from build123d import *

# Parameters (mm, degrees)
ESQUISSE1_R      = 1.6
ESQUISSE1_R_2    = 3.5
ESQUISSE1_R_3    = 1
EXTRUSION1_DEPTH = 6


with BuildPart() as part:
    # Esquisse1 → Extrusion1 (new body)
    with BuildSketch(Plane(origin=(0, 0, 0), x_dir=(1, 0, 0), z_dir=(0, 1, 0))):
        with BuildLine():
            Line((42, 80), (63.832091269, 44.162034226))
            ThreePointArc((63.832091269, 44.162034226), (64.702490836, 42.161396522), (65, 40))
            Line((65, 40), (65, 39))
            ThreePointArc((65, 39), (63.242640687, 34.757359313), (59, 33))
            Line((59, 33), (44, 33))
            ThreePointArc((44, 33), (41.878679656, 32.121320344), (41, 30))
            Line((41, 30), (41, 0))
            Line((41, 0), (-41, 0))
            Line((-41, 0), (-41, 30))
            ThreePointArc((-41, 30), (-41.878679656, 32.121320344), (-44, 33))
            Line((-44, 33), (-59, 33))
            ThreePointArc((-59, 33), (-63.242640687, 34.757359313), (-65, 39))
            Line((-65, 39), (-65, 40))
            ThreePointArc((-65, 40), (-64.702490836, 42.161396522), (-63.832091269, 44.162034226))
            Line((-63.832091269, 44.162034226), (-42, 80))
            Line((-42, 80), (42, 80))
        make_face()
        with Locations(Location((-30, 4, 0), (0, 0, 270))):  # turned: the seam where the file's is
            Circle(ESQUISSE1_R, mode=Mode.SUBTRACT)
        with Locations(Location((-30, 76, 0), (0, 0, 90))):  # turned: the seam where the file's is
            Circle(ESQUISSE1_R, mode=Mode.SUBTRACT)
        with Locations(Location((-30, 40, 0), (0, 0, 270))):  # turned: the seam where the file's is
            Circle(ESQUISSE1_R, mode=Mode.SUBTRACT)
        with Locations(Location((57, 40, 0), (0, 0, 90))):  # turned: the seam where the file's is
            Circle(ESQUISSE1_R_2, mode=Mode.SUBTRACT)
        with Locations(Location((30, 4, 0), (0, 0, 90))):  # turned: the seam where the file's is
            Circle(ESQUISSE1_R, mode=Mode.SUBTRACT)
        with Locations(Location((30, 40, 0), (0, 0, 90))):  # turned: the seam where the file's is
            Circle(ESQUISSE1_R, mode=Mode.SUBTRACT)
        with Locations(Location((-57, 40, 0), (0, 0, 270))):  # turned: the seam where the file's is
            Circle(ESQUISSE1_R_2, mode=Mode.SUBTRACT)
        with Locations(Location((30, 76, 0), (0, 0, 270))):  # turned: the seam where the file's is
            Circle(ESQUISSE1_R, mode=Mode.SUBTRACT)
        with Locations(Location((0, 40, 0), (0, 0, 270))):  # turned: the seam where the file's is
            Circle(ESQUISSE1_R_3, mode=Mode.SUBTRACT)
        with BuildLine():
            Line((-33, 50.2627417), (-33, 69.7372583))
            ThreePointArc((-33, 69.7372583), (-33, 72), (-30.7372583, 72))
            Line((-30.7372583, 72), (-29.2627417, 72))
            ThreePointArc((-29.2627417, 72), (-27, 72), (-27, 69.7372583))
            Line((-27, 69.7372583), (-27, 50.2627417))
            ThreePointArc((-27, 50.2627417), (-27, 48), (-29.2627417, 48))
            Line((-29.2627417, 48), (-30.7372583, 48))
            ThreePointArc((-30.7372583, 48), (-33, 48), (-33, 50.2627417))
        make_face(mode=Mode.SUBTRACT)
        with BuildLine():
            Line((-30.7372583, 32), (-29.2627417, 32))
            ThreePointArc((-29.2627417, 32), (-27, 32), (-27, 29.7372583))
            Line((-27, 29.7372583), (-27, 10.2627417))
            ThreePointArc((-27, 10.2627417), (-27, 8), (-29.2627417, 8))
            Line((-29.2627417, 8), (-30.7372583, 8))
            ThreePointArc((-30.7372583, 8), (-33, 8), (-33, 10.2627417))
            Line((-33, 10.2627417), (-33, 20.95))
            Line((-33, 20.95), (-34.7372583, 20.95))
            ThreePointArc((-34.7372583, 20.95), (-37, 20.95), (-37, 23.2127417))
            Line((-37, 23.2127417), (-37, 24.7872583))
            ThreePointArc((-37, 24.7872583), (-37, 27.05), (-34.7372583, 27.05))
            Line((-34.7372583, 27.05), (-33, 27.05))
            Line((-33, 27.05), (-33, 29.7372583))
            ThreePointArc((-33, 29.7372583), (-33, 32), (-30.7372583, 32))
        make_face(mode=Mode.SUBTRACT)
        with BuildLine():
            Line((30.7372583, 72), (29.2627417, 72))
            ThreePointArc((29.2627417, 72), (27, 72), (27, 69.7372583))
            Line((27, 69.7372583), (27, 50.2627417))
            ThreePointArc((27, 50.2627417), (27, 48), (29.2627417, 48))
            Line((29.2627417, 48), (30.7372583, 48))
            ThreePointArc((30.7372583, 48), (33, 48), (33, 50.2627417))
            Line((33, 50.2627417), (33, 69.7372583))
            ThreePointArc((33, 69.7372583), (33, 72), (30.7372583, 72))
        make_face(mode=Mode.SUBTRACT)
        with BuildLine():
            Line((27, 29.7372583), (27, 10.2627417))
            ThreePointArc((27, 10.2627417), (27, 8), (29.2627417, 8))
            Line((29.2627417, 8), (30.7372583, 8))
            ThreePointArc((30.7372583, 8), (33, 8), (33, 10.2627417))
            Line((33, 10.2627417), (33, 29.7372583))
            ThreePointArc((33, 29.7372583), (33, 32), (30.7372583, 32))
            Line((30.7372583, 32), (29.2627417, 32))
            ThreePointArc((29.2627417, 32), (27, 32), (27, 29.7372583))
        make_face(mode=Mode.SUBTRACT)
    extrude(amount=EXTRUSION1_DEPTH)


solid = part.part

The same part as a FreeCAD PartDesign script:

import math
import FreeCAD as App
import Part
import Sketcher
from FreeCAD import Vector

doc = App.newDocument("Part")
body = doc.addObject("PartDesign::Body", "Body")

# Sketch on XZ plane
sketch1 = body.newObject("Sketcher::SketchObject", "Sketch")
sketch1.AttachmentSupport = (doc.getObject("XZ_Plane"), [""])
sketch1.MapMode = "FlatFace"
sketch1.addGeometry(Part.LineSegment(Vector(63.8, -44.2, 0), Vector(42, -80, 0)), False)
sketch1.addGeometry(Part.LineSegment(Vector(42, -80, 0), Vector(-42, -80, 0)), False)
sketch1.addGeometry(Part.LineSegment(Vector(-42, -80, 0), Vector(-63.8, -44.2, 0)), False)
sketch1.addGeometry(Part.ArcOfCircle(Part.Circle(Vector(-57, -40, 0), Vector(0, 0, 1), 8), math.radians(180), math.radians(211)), False)
sketch1.addGeometry(Part.LineSegment(Vector(-65, -40, 0), Vector(-65, -39, 0)), False)
sketch1.addGeometry(Part.ArcOfCircle(Part.Circle(Vector(-59, -39, 0), Vector(0, 0, 1), 6), math.radians(90), math.radians(180)), False)
sketch1.addGeometry(Part.LineSegment(Vector(-59, -33, 0), Vector(-44, -33, 0)), False)
sketch1.addGeometry(Part.ArcOfCircle(Part.Circle(Vector(-44, -30, 0), Vector(0, 0, 1), 3), math.radians(-90), math.radians(0)), False)
sketch1.addGeometry(Part.LineSegment(Vector(-41, -30, 0), Vector(-41, 0, 0)), False)
sketch1.addGeometry(Part.LineSegment(Vector(-41, 0, 0), Vector(41, 0, 0)), False)
sketch1.addGeometry(Part.LineSegment(Vector(41, 0, 0), Vector(41, -30, 0)), False)
sketch1.addGeometry(Part.ArcOfCircle(Part.Circle(Vector(44, -30, 0), Vector(0, 0, 1), 3), math.radians(180), math.radians(270)), False)
sketch1.addGeometry(Part.LineSegment(Vector(44, -33, 0), Vector(59, -33, 0)), False)
sketch1.addGeometry(Part.ArcOfCircle(Part.Circle(Vector(59, -39, 0), Vector(0, 0, 1), 6), math.radians(0), math.radians(90)), False)
sketch1.addGeometry(Part.LineSegment(Vector(65, -39, 0), Vector(65, -40, 0)), False)
sketch1.addGeometry(Part.ArcOfCircle(Part.Circle(Vector(57, -40, 0), Vector(0, 0, 1), 8), math.radians(-31), math.radians(0)), False)
sketch1.addGeometry(Part.Circle(Vector(30, -4, 0), Vector(0, 0, 1), 1.6), False)
sketch1.addGeometry(Part.ArcOfCircle(Part.Circle(Vector(28.1, -30.9, 0), Vector(0, 0, 1), 1.6), math.radians(135), math.radians(315)), False)
sketch1.addGeometry(Part.LineSegment(Vector(29.3, -32, 0), Vector(30.7, -32, 0)), False)
sketch1.addGeometry(Part.ArcOfCircle(Part.Circle(Vector(31.9, -30.9, 0), Vector(0, 0, 1), 1.6), math.radians(-135), math.radians(45)), False)
sketch1.addGeometry(Part.LineSegment(Vector(33, -29.7, 0), Vector(33, -10.3, 0)), False)
sketch1.addGeometry(Part.ArcOfCircle(Part.Circle(Vector(31.9, -9.1, 0), Vector(0, 0, 1), 1.6), math.radians(-45), math.radians(135)), False)
sketch1.addGeometry(Part.LineSegment(Vector(30.7, -8, 0), Vector(29.3, -8, 0)), False)
sketch1.addGeometry(Part.ArcOfCircle(Part.Circle(Vector(28.1, -9.1, 0), Vector(0, 0, 1), 1.6), math.radians(45), math.radians(225)), False)
sketch1.addGeometry(Part.LineSegment(Vector(27, -10.3, 0), Vector(27, -29.7, 0)), False)
sketch1.addGeometry(Part.Circle(Vector(-30, -4, 0), Vector(0, 0, 1), 1.6), False)
sketch1.addGeometry(Part.LineSegment(Vector(-30.7, -32, 0), Vector(-29.3, -32, 0)), False)
sketch1.addGeometry(Part.ArcOfCircle(Part.Circle(Vector(-28.1, -30.9, 0), Vector(0, 0, 1), 1.6), math.radians(-135), math.radians(45)), False)
sketch1.addGeometry(Part.LineSegment(Vector(-27, -29.7, 0), Vector(-27, -10.3, 0)), False)
sketch1.addGeometry(Part.ArcOfCircle(Part.Circle(Vector(-28.1, -9.1, 0), Vector(0, 0, 1), 1.6), math.radians(-45), math.radians(135)), False)
sketch1.addGeometry(Part.LineSegment(Vector(-29.3, -8, 0), Vector(-30.7, -8, 0)), False)
sketch1.addGeometry(Part.ArcOfCircle(Part.Circle(Vector(-31.9, -9.1, 0), Vector(0, 0, 1), 1.6), math.radians(45), math.radians(225)), False)
sketch1.addGeometry(Part.LineSegment(Vector(-33, -10.3, 0), Vector(-33, -20.9, 0)), False)
sketch1.addGeometry(Part.LineSegment(Vector(-33, -20.9, 0), Vector(-34.7, -20.9, 0)), False)
sketch1.addGeometry(Part.ArcOfCircle(Part.Circle(Vector(-35.9, -22.1, 0), Vector(0, 0, 1), 1.6), math.radians(45), math.radians(225)), False)
sketch1.addGeometry(Part.LineSegment(Vector(-37, -23.2, 0), Vector(-37, -24.8, 0)), False)
sketch1.addGeometry(Part.ArcOfCircle(Part.Circle(Vector(-35.9, -25.9, 0), Vector(0, 0, 1), 1.6), math.radians(135), math.radians(315)), False)
sketch1.addGeometry(Part.LineSegment(Vector(-34.7, -27.1, 0), Vector(-33, -27.1, 0)), False)
sketch1.addGeometry(Part.LineSegment(Vector(-33, -27.1, 0), Vector(-33, -29.7, 0)), False)
sketch1.addGeometry(Part.ArcOfCircle(Part.Circle(Vector(-31.9, -30.9, 0), Vector(0, 0, 1), 1.6), math.radians(135), math.radians(315)), False)
sketch1.addGeometry(Part.Circle(Vector(57, -40, 0), Vector(0, 0, 1), 3.5), False)
sketch1.addGeometry(Part.Circle(Vector(30, -40, 0), Vector(0, 0, 1), 1.6), False)
sketch1.addGeometry(Part.ArcOfCircle(Part.Circle(Vector(31.9, -70.9, 0), Vector(0, 0, 1), 1.6), math.radians(-135), math.radians(45)), False)
sketch1.addGeometry(Part.LineSegment(Vector(33, -69.7, 0), Vector(33, -50.3, 0)), False)
sketch1.addGeometry(Part.ArcOfCircle(Part.Circle(Vector(31.9, -49.1, 0), Vector(0, 0, 1), 1.6), math.radians(-45), math.radians(135)), False)
sketch1.addGeometry(Part.LineSegment(Vector(30.7, -48, 0), Vector(29.3, -48, 0)), False)
sketch1.addGeometry(Part.ArcOfCircle(Part.Circle(Vector(28.1, -49.1, 0), Vector(0, 0, 1), 1.6), math.radians(45), math.radians(225)), False)
sketch1.addGeometry(Part.LineSegment(Vector(27, -50.3, 0), Vector(27, -69.7, 0)), False)
sketch1.addGeometry(Part.ArcOfCircle(Part.Circle(Vector(28.1, -70.9, 0), Vector(0, 0, 1), 1.6), math.radians(135), math.radians(315)), False)
sketch1.addGeometry(Part.LineSegment(Vector(29.3, -72, 0), Vector(30.7, -72, 0)), False)
sketch1.addGeometry(Part.Circle(Vector(30, -76, 0), Vector(0, 0, 1), 1.6), False)
sketch1.addGeometry(Part.Circle(Vector(0, -40, 0), Vector(0, 0, 1), 1), False)
sketch1.addGeometry(Part.Circle(Vector(-30, -40, 0), Vector(0, 0, 1), 1.6), False)
sketch1.addGeometry(Part.Circle(Vector(-57, -40, 0), Vector(0, 0, 1), 3.5), False)
sketch1.addGeometry(Part.LineSegment(Vector(-33, -50.3, 0), Vector(-33, -69.7, 0)), False)
sketch1.addGeometry(Part.ArcOfCircle(Part.Circle(Vector(-31.9, -70.9, 0), Vector(0, 0, 1), 1.6), math.radians(135), math.radians(315)), False)
sketch1.addGeometry(Part.LineSegment(Vector(-30.7, -72, 0), Vector(-29.3, -72, 0)), False)
sketch1.addGeometry(Part.ArcOfCircle(Part.Circle(Vector(-28.1, -70.9, 0), Vector(0, 0, 1), 1.6), math.radians(-135), math.radians(45)), False)
sketch1.addGeometry(Part.LineSegment(Vector(-27, -69.7, 0), Vector(-27, -50.3, 0)), False)
sketch1.addGeometry(Part.ArcOfCircle(Part.Circle(Vector(-28.1, -49.1, 0), Vector(0, 0, 1), 1.6), math.radians(-45), math.radians(135)), False)
sketch1.addGeometry(Part.LineSegment(Vector(-29.3, -48, 0), Vector(-30.7, -48, 0)), False)
sketch1.addGeometry(Part.ArcOfCircle(Part.Circle(Vector(-31.9, -49.1, 0), Vector(0, 0, 1), 1.6), math.radians(45), math.radians(225)), False)
sketch1.addGeometry(Part.Circle(Vector(-30, -76, 0), Vector(0, 0, 1), 1.6), False)
sketch1.addConstraint(Sketcher.Constraint("Coincident", 0, 2, 1, 1))
sketch1.addConstraint(Sketcher.Constraint("Coincident", 1, 2, 2, 1))
sketch1.addConstraint(Sketcher.Constraint("Tangent", 2, 2, 3, 2))
sketch1.addConstraint(Sketcher.Constraint("Tangent", 3, 1, 4, 1))
sketch1.addConstraint(Sketcher.Constraint("Tangent", 4, 2, 5, 2))
sketch1.addConstraint(Sketcher.Constraint("Tangent", 5, 1, 6, 1))
sketch1.addConstraint(Sketcher.Constraint("Tangent", 6, 2, 7, 1))
sketch1.addConstraint(Sketcher.Constraint("Tangent", 7, 2, 8, 1))
sketch1.addConstraint(Sketcher.Constraint("Coincident", 8, 2, 9, 1))
sketch1.addConstraint(Sketcher.Constraint("Coincident", 9, 2, 10, 1))
sketch1.addConstraint(Sketcher.Constraint("Tangent", 10, 2, 11, 1))
sketch1.addConstraint(Sketcher.Constraint("Tangent", 11, 2, 12, 1))
sketch1.addConstraint(Sketcher.Constraint("Tangent", 12, 2, 13, 2))
sketch1.addConstraint(Sketcher.Constraint("Tangent", 13, 1, 14, 1))
sketch1.addConstraint(Sketcher.Constraint("Tangent", 14, 2, 15, 2))
sketch1.addConstraint(Sketcher.Constraint("Tangent", 15, 1, 0, 1))
sketch1.addConstraint(Sketcher.Constraint("Coincident", 17, 2, 18, 1))
sketch1.addConstraint(Sketcher.Constraint("Coincident", 18, 2, 19, 1))
sketch1.addConstraint(Sketcher.Constraint("Coincident", 19, 2, 20, 1))
sketch1.addConstraint(Sketcher.Constraint("Coincident", 20, 2, 21, 1))
sketch1.addConstraint(Sketcher.Constraint("Coincident", 21, 2, 22, 1))
sketch1.addConstraint(Sketcher.Constraint("Coincident", 22, 2, 23, 1))
sketch1.addConstraint(Sketcher.Constraint("Coincident", 23, 2, 24, 1))
sketch1.addConstraint(Sketcher.Constraint("Coincident", 24, 2, 17, 1))
sketch1.addConstraint(Sketcher.Constraint("Coincident", 26, 2, 27, 1))
sketch1.addConstraint(Sketcher.Constraint("Coincident", 27, 2, 28, 1))
sketch1.addConstraint(Sketcher.Constraint("Coincident", 28, 2, 29, 1))
sketch1.addConstraint(Sketcher.Constraint("Coincident", 29, 2, 30, 1))
sketch1.addConstraint(Sketcher.Constraint("Coincident", 30, 2, 31, 1))
sketch1.addConstraint(Sketcher.Constraint("Coincident", 31, 2, 32, 1))
sketch1.addConstraint(Sketcher.Constraint("Coincident", 32, 2, 33, 1))
sketch1.addConstraint(Sketcher.Constraint("Coincident", 33, 2, 34, 1))
sketch1.addConstraint(Sketcher.Constraint("Coincident", 34, 2, 35, 1))
sketch1.addConstraint(Sketcher.Constraint("Coincident", 35, 2, 36, 1))
sketch1.addConstraint(Sketcher.Constraint("Coincident", 36, 2, 37, 1))
sketch1.addConstraint(Sketcher.Constraint("Coincident", 37, 2, 38, 1))
sketch1.addConstraint(Sketcher.Constraint("Coincident", 38, 2, 39, 1))
sketch1.addConstraint(Sketcher.Constraint("Coincident", 39, 2, 26, 1))
sketch1.addConstraint(Sketcher.Constraint("Coincident", 42, 2, 43, 1))
sketch1.addConstraint(Sketcher.Constraint("Coincident", 43, 2, 44, 1))
sketch1.addConstraint(Sketcher.Constraint("Coincident", 44, 2, 45, 1))
sketch1.addConstraint(Sketcher.Constraint("Coincident", 45, 2, 46, 1))
sketch1.addConstraint(Sketcher.Constraint("Coincident", 46, 2, 47, 1))
sketch1.addConstraint(Sketcher.Constraint("Coincident", 47, 2, 48, 1))
sketch1.addConstraint(Sketcher.Constraint("Coincident", 48, 2, 49, 1))
sketch1.addConstraint(Sketcher.Constraint("Coincident", 49, 2, 42, 1))
sketch1.addConstraint(Sketcher.Constraint("Coincident", 54, 2, 55, 1))
sketch1.addConstraint(Sketcher.Constraint("Coincident", 55, 2, 56, 1))
sketch1.addConstraint(Sketcher.Constraint("Coincident", 56, 2, 57, 1))
sketch1.addConstraint(Sketcher.Constraint("Coincident", 57, 2, 58, 1))
sketch1.addConstraint(Sketcher.Constraint("Coincident", 58, 2, 59, 1))
sketch1.addConstraint(Sketcher.Constraint("Coincident", 59, 2, 60, 1))
sketch1.addConstraint(Sketcher.Constraint("Coincident", 60, 2, 61, 1))
sketch1.addConstraint(Sketcher.Constraint("Coincident", 61, 2, 54, 1))
sketch1.addConstraint(Sketcher.Constraint("Horizontal", 1))
sketch1.addConstraint(Sketcher.Constraint("Vertical", 4))
sketch1.addConstraint(Sketcher.Constraint("Horizontal", 6))
sketch1.addConstraint(Sketcher.Constraint("Vertical", 8))
sketch1.addConstraint(Sketcher.Constraint("Horizontal", 9))
sketch1.addConstraint(Sketcher.Constraint("Vertical", 10))
sketch1.addConstraint(Sketcher.Constraint("Horizontal", 12))
sketch1.addConstraint(Sketcher.Constraint("Vertical", 14))
sketch1.addConstraint(Sketcher.Constraint("Horizontal", 18))
sketch1.addConstraint(Sketcher.Constraint("Vertical", 20))
sketch1.addConstraint(Sketcher.Constraint("Horizontal", 22))
sketch1.addConstraint(Sketcher.Constraint("Vertical", 24))
sketch1.addConstraint(Sketcher.Constraint("Horizontal", 26))
sketch1.addConstraint(Sketcher.Constraint("Vertical", 28))
sketch1.addConstraint(Sketcher.Constraint("Horizontal", 30))
sketch1.addConstraint(Sketcher.Constraint("Vertical", 32))
sketch1.addConstraint(Sketcher.Constraint("Horizontal", 33))
sketch1.addConstraint(Sketcher.Constraint("Vertical", 35))
sketch1.addConstraint(Sketcher.Constraint("Horizontal", 37))
sketch1.addConstraint(Sketcher.Constraint("Vertical", 38))
sketch1.addConstraint(Sketcher.Constraint("Vertical", 43))
sketch1.addConstraint(Sketcher.Constraint("Horizontal", 45))
sketch1.addConstraint(Sketcher.Constraint("Vertical", 47))
sketch1.addConstraint(Sketcher.Constraint("Horizontal", 49))
sketch1.addConstraint(Sketcher.Constraint("Vertical", 54))
sketch1.addConstraint(Sketcher.Constraint("Horizontal", 56))
sketch1.addConstraint(Sketcher.Constraint("Vertical", 58))
sketch1.addConstraint(Sketcher.Constraint("Horizontal", 60))
sketch1.addConstraint(Sketcher.Constraint("Coincident", 40, 3, 15, 3))
sketch1.addConstraint(Sketcher.Constraint("Coincident", 53, 3, 3, 3))
sketch1.addConstraint(Sketcher.Constraint("Equal", 7, 11))
sketch1.addConstraint(Sketcher.Constraint("Equal", 5, 13))
sketch1.addConstraint(Sketcher.Constraint("Equal", 3, 15))
sketch1.addConstraint(Sketcher.Constraint("Equal", 16, 17))
sketch1.addConstraint(Sketcher.Constraint("Equal", 17, 19))
sketch1.addConstraint(Sketcher.Constraint("Equal", 19, 21))
sketch1.addConstraint(Sketcher.Constraint("Equal", 21, 23))
sketch1.addConstraint(Sketcher.Constraint("Equal", 23, 25))
sketch1.addConstraint(Sketcher.Constraint("Equal", 25, 27))
sketch1.addConstraint(Sketcher.Constraint("Equal", 27, 29))
sketch1.addConstraint(Sketcher.Constraint("Equal", 29, 31))
sketch1.addConstraint(Sketcher.Constraint("Equal", 31, 34))
sketch1.addConstraint(Sketcher.Constraint("Equal", 34, 36))
sketch1.addConstraint(Sketcher.Constraint("Equal", 36, 39))
sketch1.addConstraint(Sketcher.Constraint("Equal", 39, 41))
sketch1.addConstraint(Sketcher.Constraint("Equal", 41, 42))
sketch1.addConstraint(Sketcher.Constraint("Equal", 42, 44))
sketch1.addConstraint(Sketcher.Constraint("Equal", 44, 46))
sketch1.addConstraint(Sketcher.Constraint("Equal", 46, 48))
sketch1.addConstraint(Sketcher.Constraint("Equal", 48, 50))
sketch1.addConstraint(Sketcher.Constraint("Equal", 50, 52))
sketch1.addConstraint(Sketcher.Constraint("Equal", 40, 53))
sketch1.addConstraint(Sketcher.Constraint("Equal", 52, 55))
sketch1.addConstraint(Sketcher.Constraint("Equal", 55, 57))
sketch1.addConstraint(Sketcher.Constraint("Equal", 57, 59))
sketch1.addConstraint(Sketcher.Constraint("Equal", 59, 61))
sketch1.addConstraint(Sketcher.Constraint("Equal", 61, 62))
sketch1.addConstraint(Sketcher.Constraint("Symmetric", 8, 2, 9, 2, -1, 1))
sketch1.addConstraint(Sketcher.Constraint("Symmetric", 5, 3, 13, 3, -2))
sketch1.addConstraint(Sketcher.Constraint("Symmetric", 16, 3, 25, 3, -2))
sketch1.addConstraint(Sketcher.Constraint("Symmetric", 17, 3, 27, 3, -2))
sketch1.addConstraint(Sketcher.Constraint("Symmetric", 23, 3, 29, 3, -2))
sketch1.addConstraint(Sketcher.Constraint("Symmetric", 21, 3, 31, 3, -2))
sketch1.addConstraint(Sketcher.Constraint("Symmetric", 19, 3, 39, 3, -2))
sketch1.addConstraint(Sketcher.Constraint("Symmetric", 41, 3, 52, 3, -2))
sketch1.addConstraint(Sketcher.Constraint("Symmetric", 42, 3, 55, 3, -2))
sketch1.addConstraint(Sketcher.Constraint("Symmetric", 48, 3, 57, 3, -2))
sketch1.addConstraint(Sketcher.Constraint("Symmetric", 46, 3, 59, 3, -2))
sketch1.addConstraint(Sketcher.Constraint("Symmetric", 44, 3, 61, 3, -2))
sketch1.addConstraint(Sketcher.Constraint("Symmetric", 50, 3, 62, 3, -2))
sketch1.addConstraint(Sketcher.Constraint("Symmetric", 2, 2, 15, 1, -2))
sketch1.addConstraint(Sketcher.Constraint("PointOnObject", 51, 3, -2))
sketch1.addConstraint(Sketcher.Constraint("Horizontal", 17, 3, 19, 3))
sketch1.addConstraint(Sketcher.Constraint("Horizontal", 21, 3, 23, 3))
sketch1.addConstraint(Sketcher.Constraint("Horizontal", 40, 3, 41, 3))
sketch1.addConstraint(Sketcher.Constraint("Horizontal", 44, 3, 46, 3))
sketch1.addConstraint(Sketcher.Constraint("Horizontal", 42, 3, 48, 3))
sketch1.addConstraint(Sketcher.Constraint("Horizontal", 41, 3, 51, 3))
sketch1.addConstraint(Sketcher.Constraint("Horizontal", 20, 2, 23, 2))
sketch1.addConstraint(Sketcher.Constraint("Horizontal", 19, 2, 24, 2))
sketch1.addConstraint(Sketcher.Constraint("Horizontal", 18, 2, 26, 2))
sketch1.addConstraint(Sketcher.Constraint("Horizontal", 24, 2, 27, 2))
sketch1.addConstraint(Sketcher.Constraint("Horizontal", 22, 2, 29, 2))
sketch1.addConstraint(Sketcher.Constraint("Horizontal", 28, 2, 31, 2))
sketch1.addConstraint(Sketcher.Constraint("Horizontal", 27, 2, 38, 2))
sketch1.addConstraint(Sketcher.Constraint("Horizontal", 43, 2, 46, 2))
sketch1.addConstraint(Sketcher.Constraint("Horizontal", 42, 2, 47, 2))
sketch1.addConstraint(Sketcher.Constraint("Horizontal", 47, 2, 54, 2))
sketch1.addConstraint(Sketcher.Constraint("Horizontal", 49, 2, 55, 2))
sketch1.addConstraint(Sketcher.Constraint("Horizontal", 54, 2, 57, 2))
sketch1.addConstraint(Sketcher.Constraint("Horizontal", 45, 2, 59, 2))
sketch1.addConstraint(Sketcher.Constraint("Vertical", 19, 3, 21, 3))
sketch1.addConstraint(Sketcher.Constraint("Vertical", 34, 3, 36, 3))
sketch1.addConstraint(Sketcher.Constraint("Vertical", 16, 3, 41, 3))
sketch1.addConstraint(Sketcher.Constraint("Vertical", 21, 3, 42, 3))
sketch1.addConstraint(Sketcher.Constraint("Vertical", 42, 3, 44, 3))
sketch1.addConstraint(Sketcher.Constraint("Vertical", 23, 3, 46, 3))
sketch1.addConstraint(Sketcher.Constraint("Vertical", 41, 3, 50, 3))
sketch1.addConstraint(Sketcher.Constraint("Vertical", 18, 2, 21, 2))
sketch1.addConstraint(Sketcher.Constraint("Vertical", 33, 2, 36, 2))
sketch1.addConstraint(Sketcher.Constraint("Vertical", 20, 2, 42, 2))
sketch1.addConstraint(Sketcher.Constraint("Vertical", 21, 2, 44, 2))
sketch1.addConstraint(Sketcher.Constraint("Vertical", 45, 2, 48, 2))
sketch1.addConstraint(Sketcher.Constraint("Equal", 28, 43))
sketch1.addConstraint(Sketcher.Constraint("Diameter", 40, 7.0))
sketch1.addConstraint(Sketcher.Constraint("Diameter", 51, 2.0))
sketch1.addConstraint(Sketcher.Constraint("Radius", 3, 8.0))
sketch1.addConstraint(Sketcher.Constraint("Radius", 5, 6.0))
sketch1.addConstraint(Sketcher.Constraint("Radius", 7, 3.0))
sketch1.addConstraint(Sketcher.Constraint("Diameter", 16, 3.2))
sketch1.addConstraint(Sketcher.Constraint("DistanceX", 1, 2, 1, 1, 84.0))
sketch1.addConstraint(Sketcher.Constraint("DistanceX", 6, 1, 6, 2, 15.0))
sketch1.addConstraint(Sketcher.Constraint("DistanceX", 9, 1, 9, 2, 82.0))
sketch1.addConstraint(Sketcher.Constraint("DistanceY", 4, 1, 4, 2, 1.0))
sketch1.addConstraint(Sketcher.Constraint("DistanceY", 8, 1, 8, 2, 30.0))
sketch1.addConstraint(Sketcher.Constraint("DistanceX", -1, 1, 16, 3, 30.0))
sketch1.addConstraint(Sketcher.Constraint("DistanceY", 16, 3, -1, 1, 4.0))
sketch1.addConstraint(Sketcher.Constraint("DistanceY", 50, 3, -1, 1, 76.0))
sketch1.addConstraint(Sketcher.Constraint("DistanceY", 0, 2, -1, 1, 80.0))
sketch1.addConstraint(Sketcher.Constraint("DistanceY", 17, 2, -1, 1, 32.0))
sketch1.addConstraint(Sketcher.Constraint("DistanceX", -1, 1, 19, 2, 33.0))
sketch1.addConstraint(Sketcher.Constraint("DistanceY", 21, 2, -1, 1, 8.0))
sketch1.addConstraint(Sketcher.Constraint("DistanceX", -1, 1, 23, 2, 27.0))
sketch1.addConstraint(Sketcher.Constraint("DistanceX", 34, 2, -1, 1, 37.0))
sketch1.addConstraint(Sketcher.Constraint("DistanceY", 44, 2, -1, 1, 48.0))
sketch1.addConstraint(Sketcher.Constraint("DistanceY", 32, 2, -1, 1, 20.95))
sketch1.addConstraint(Sketcher.Constraint("DistanceY", 36, 2, -1, 1, 27.05))
sketch1.addConstraint(Sketcher.Constraint("DistanceX", 33, 2, 33, 1, 1.737258))
sketch1.addConstraint(Sketcher.Constraint("DistanceY", 32, 2, 32, 1, 10.687258))
sketch1.addConstraint(Sketcher.Constraint("DistanceX", -1, 1, 17, 3, 28.131371))
sketch1.addConstraint(Sketcher.Constraint("DistanceX", 34, 3, -1, 1, 35.868629))
pad1 = body.newObject("PartDesign::Pad", "Pad")
pad1.Profile = sketch1
pad1.Length = 6
pad1.Reversed = True

doc.recompute()
